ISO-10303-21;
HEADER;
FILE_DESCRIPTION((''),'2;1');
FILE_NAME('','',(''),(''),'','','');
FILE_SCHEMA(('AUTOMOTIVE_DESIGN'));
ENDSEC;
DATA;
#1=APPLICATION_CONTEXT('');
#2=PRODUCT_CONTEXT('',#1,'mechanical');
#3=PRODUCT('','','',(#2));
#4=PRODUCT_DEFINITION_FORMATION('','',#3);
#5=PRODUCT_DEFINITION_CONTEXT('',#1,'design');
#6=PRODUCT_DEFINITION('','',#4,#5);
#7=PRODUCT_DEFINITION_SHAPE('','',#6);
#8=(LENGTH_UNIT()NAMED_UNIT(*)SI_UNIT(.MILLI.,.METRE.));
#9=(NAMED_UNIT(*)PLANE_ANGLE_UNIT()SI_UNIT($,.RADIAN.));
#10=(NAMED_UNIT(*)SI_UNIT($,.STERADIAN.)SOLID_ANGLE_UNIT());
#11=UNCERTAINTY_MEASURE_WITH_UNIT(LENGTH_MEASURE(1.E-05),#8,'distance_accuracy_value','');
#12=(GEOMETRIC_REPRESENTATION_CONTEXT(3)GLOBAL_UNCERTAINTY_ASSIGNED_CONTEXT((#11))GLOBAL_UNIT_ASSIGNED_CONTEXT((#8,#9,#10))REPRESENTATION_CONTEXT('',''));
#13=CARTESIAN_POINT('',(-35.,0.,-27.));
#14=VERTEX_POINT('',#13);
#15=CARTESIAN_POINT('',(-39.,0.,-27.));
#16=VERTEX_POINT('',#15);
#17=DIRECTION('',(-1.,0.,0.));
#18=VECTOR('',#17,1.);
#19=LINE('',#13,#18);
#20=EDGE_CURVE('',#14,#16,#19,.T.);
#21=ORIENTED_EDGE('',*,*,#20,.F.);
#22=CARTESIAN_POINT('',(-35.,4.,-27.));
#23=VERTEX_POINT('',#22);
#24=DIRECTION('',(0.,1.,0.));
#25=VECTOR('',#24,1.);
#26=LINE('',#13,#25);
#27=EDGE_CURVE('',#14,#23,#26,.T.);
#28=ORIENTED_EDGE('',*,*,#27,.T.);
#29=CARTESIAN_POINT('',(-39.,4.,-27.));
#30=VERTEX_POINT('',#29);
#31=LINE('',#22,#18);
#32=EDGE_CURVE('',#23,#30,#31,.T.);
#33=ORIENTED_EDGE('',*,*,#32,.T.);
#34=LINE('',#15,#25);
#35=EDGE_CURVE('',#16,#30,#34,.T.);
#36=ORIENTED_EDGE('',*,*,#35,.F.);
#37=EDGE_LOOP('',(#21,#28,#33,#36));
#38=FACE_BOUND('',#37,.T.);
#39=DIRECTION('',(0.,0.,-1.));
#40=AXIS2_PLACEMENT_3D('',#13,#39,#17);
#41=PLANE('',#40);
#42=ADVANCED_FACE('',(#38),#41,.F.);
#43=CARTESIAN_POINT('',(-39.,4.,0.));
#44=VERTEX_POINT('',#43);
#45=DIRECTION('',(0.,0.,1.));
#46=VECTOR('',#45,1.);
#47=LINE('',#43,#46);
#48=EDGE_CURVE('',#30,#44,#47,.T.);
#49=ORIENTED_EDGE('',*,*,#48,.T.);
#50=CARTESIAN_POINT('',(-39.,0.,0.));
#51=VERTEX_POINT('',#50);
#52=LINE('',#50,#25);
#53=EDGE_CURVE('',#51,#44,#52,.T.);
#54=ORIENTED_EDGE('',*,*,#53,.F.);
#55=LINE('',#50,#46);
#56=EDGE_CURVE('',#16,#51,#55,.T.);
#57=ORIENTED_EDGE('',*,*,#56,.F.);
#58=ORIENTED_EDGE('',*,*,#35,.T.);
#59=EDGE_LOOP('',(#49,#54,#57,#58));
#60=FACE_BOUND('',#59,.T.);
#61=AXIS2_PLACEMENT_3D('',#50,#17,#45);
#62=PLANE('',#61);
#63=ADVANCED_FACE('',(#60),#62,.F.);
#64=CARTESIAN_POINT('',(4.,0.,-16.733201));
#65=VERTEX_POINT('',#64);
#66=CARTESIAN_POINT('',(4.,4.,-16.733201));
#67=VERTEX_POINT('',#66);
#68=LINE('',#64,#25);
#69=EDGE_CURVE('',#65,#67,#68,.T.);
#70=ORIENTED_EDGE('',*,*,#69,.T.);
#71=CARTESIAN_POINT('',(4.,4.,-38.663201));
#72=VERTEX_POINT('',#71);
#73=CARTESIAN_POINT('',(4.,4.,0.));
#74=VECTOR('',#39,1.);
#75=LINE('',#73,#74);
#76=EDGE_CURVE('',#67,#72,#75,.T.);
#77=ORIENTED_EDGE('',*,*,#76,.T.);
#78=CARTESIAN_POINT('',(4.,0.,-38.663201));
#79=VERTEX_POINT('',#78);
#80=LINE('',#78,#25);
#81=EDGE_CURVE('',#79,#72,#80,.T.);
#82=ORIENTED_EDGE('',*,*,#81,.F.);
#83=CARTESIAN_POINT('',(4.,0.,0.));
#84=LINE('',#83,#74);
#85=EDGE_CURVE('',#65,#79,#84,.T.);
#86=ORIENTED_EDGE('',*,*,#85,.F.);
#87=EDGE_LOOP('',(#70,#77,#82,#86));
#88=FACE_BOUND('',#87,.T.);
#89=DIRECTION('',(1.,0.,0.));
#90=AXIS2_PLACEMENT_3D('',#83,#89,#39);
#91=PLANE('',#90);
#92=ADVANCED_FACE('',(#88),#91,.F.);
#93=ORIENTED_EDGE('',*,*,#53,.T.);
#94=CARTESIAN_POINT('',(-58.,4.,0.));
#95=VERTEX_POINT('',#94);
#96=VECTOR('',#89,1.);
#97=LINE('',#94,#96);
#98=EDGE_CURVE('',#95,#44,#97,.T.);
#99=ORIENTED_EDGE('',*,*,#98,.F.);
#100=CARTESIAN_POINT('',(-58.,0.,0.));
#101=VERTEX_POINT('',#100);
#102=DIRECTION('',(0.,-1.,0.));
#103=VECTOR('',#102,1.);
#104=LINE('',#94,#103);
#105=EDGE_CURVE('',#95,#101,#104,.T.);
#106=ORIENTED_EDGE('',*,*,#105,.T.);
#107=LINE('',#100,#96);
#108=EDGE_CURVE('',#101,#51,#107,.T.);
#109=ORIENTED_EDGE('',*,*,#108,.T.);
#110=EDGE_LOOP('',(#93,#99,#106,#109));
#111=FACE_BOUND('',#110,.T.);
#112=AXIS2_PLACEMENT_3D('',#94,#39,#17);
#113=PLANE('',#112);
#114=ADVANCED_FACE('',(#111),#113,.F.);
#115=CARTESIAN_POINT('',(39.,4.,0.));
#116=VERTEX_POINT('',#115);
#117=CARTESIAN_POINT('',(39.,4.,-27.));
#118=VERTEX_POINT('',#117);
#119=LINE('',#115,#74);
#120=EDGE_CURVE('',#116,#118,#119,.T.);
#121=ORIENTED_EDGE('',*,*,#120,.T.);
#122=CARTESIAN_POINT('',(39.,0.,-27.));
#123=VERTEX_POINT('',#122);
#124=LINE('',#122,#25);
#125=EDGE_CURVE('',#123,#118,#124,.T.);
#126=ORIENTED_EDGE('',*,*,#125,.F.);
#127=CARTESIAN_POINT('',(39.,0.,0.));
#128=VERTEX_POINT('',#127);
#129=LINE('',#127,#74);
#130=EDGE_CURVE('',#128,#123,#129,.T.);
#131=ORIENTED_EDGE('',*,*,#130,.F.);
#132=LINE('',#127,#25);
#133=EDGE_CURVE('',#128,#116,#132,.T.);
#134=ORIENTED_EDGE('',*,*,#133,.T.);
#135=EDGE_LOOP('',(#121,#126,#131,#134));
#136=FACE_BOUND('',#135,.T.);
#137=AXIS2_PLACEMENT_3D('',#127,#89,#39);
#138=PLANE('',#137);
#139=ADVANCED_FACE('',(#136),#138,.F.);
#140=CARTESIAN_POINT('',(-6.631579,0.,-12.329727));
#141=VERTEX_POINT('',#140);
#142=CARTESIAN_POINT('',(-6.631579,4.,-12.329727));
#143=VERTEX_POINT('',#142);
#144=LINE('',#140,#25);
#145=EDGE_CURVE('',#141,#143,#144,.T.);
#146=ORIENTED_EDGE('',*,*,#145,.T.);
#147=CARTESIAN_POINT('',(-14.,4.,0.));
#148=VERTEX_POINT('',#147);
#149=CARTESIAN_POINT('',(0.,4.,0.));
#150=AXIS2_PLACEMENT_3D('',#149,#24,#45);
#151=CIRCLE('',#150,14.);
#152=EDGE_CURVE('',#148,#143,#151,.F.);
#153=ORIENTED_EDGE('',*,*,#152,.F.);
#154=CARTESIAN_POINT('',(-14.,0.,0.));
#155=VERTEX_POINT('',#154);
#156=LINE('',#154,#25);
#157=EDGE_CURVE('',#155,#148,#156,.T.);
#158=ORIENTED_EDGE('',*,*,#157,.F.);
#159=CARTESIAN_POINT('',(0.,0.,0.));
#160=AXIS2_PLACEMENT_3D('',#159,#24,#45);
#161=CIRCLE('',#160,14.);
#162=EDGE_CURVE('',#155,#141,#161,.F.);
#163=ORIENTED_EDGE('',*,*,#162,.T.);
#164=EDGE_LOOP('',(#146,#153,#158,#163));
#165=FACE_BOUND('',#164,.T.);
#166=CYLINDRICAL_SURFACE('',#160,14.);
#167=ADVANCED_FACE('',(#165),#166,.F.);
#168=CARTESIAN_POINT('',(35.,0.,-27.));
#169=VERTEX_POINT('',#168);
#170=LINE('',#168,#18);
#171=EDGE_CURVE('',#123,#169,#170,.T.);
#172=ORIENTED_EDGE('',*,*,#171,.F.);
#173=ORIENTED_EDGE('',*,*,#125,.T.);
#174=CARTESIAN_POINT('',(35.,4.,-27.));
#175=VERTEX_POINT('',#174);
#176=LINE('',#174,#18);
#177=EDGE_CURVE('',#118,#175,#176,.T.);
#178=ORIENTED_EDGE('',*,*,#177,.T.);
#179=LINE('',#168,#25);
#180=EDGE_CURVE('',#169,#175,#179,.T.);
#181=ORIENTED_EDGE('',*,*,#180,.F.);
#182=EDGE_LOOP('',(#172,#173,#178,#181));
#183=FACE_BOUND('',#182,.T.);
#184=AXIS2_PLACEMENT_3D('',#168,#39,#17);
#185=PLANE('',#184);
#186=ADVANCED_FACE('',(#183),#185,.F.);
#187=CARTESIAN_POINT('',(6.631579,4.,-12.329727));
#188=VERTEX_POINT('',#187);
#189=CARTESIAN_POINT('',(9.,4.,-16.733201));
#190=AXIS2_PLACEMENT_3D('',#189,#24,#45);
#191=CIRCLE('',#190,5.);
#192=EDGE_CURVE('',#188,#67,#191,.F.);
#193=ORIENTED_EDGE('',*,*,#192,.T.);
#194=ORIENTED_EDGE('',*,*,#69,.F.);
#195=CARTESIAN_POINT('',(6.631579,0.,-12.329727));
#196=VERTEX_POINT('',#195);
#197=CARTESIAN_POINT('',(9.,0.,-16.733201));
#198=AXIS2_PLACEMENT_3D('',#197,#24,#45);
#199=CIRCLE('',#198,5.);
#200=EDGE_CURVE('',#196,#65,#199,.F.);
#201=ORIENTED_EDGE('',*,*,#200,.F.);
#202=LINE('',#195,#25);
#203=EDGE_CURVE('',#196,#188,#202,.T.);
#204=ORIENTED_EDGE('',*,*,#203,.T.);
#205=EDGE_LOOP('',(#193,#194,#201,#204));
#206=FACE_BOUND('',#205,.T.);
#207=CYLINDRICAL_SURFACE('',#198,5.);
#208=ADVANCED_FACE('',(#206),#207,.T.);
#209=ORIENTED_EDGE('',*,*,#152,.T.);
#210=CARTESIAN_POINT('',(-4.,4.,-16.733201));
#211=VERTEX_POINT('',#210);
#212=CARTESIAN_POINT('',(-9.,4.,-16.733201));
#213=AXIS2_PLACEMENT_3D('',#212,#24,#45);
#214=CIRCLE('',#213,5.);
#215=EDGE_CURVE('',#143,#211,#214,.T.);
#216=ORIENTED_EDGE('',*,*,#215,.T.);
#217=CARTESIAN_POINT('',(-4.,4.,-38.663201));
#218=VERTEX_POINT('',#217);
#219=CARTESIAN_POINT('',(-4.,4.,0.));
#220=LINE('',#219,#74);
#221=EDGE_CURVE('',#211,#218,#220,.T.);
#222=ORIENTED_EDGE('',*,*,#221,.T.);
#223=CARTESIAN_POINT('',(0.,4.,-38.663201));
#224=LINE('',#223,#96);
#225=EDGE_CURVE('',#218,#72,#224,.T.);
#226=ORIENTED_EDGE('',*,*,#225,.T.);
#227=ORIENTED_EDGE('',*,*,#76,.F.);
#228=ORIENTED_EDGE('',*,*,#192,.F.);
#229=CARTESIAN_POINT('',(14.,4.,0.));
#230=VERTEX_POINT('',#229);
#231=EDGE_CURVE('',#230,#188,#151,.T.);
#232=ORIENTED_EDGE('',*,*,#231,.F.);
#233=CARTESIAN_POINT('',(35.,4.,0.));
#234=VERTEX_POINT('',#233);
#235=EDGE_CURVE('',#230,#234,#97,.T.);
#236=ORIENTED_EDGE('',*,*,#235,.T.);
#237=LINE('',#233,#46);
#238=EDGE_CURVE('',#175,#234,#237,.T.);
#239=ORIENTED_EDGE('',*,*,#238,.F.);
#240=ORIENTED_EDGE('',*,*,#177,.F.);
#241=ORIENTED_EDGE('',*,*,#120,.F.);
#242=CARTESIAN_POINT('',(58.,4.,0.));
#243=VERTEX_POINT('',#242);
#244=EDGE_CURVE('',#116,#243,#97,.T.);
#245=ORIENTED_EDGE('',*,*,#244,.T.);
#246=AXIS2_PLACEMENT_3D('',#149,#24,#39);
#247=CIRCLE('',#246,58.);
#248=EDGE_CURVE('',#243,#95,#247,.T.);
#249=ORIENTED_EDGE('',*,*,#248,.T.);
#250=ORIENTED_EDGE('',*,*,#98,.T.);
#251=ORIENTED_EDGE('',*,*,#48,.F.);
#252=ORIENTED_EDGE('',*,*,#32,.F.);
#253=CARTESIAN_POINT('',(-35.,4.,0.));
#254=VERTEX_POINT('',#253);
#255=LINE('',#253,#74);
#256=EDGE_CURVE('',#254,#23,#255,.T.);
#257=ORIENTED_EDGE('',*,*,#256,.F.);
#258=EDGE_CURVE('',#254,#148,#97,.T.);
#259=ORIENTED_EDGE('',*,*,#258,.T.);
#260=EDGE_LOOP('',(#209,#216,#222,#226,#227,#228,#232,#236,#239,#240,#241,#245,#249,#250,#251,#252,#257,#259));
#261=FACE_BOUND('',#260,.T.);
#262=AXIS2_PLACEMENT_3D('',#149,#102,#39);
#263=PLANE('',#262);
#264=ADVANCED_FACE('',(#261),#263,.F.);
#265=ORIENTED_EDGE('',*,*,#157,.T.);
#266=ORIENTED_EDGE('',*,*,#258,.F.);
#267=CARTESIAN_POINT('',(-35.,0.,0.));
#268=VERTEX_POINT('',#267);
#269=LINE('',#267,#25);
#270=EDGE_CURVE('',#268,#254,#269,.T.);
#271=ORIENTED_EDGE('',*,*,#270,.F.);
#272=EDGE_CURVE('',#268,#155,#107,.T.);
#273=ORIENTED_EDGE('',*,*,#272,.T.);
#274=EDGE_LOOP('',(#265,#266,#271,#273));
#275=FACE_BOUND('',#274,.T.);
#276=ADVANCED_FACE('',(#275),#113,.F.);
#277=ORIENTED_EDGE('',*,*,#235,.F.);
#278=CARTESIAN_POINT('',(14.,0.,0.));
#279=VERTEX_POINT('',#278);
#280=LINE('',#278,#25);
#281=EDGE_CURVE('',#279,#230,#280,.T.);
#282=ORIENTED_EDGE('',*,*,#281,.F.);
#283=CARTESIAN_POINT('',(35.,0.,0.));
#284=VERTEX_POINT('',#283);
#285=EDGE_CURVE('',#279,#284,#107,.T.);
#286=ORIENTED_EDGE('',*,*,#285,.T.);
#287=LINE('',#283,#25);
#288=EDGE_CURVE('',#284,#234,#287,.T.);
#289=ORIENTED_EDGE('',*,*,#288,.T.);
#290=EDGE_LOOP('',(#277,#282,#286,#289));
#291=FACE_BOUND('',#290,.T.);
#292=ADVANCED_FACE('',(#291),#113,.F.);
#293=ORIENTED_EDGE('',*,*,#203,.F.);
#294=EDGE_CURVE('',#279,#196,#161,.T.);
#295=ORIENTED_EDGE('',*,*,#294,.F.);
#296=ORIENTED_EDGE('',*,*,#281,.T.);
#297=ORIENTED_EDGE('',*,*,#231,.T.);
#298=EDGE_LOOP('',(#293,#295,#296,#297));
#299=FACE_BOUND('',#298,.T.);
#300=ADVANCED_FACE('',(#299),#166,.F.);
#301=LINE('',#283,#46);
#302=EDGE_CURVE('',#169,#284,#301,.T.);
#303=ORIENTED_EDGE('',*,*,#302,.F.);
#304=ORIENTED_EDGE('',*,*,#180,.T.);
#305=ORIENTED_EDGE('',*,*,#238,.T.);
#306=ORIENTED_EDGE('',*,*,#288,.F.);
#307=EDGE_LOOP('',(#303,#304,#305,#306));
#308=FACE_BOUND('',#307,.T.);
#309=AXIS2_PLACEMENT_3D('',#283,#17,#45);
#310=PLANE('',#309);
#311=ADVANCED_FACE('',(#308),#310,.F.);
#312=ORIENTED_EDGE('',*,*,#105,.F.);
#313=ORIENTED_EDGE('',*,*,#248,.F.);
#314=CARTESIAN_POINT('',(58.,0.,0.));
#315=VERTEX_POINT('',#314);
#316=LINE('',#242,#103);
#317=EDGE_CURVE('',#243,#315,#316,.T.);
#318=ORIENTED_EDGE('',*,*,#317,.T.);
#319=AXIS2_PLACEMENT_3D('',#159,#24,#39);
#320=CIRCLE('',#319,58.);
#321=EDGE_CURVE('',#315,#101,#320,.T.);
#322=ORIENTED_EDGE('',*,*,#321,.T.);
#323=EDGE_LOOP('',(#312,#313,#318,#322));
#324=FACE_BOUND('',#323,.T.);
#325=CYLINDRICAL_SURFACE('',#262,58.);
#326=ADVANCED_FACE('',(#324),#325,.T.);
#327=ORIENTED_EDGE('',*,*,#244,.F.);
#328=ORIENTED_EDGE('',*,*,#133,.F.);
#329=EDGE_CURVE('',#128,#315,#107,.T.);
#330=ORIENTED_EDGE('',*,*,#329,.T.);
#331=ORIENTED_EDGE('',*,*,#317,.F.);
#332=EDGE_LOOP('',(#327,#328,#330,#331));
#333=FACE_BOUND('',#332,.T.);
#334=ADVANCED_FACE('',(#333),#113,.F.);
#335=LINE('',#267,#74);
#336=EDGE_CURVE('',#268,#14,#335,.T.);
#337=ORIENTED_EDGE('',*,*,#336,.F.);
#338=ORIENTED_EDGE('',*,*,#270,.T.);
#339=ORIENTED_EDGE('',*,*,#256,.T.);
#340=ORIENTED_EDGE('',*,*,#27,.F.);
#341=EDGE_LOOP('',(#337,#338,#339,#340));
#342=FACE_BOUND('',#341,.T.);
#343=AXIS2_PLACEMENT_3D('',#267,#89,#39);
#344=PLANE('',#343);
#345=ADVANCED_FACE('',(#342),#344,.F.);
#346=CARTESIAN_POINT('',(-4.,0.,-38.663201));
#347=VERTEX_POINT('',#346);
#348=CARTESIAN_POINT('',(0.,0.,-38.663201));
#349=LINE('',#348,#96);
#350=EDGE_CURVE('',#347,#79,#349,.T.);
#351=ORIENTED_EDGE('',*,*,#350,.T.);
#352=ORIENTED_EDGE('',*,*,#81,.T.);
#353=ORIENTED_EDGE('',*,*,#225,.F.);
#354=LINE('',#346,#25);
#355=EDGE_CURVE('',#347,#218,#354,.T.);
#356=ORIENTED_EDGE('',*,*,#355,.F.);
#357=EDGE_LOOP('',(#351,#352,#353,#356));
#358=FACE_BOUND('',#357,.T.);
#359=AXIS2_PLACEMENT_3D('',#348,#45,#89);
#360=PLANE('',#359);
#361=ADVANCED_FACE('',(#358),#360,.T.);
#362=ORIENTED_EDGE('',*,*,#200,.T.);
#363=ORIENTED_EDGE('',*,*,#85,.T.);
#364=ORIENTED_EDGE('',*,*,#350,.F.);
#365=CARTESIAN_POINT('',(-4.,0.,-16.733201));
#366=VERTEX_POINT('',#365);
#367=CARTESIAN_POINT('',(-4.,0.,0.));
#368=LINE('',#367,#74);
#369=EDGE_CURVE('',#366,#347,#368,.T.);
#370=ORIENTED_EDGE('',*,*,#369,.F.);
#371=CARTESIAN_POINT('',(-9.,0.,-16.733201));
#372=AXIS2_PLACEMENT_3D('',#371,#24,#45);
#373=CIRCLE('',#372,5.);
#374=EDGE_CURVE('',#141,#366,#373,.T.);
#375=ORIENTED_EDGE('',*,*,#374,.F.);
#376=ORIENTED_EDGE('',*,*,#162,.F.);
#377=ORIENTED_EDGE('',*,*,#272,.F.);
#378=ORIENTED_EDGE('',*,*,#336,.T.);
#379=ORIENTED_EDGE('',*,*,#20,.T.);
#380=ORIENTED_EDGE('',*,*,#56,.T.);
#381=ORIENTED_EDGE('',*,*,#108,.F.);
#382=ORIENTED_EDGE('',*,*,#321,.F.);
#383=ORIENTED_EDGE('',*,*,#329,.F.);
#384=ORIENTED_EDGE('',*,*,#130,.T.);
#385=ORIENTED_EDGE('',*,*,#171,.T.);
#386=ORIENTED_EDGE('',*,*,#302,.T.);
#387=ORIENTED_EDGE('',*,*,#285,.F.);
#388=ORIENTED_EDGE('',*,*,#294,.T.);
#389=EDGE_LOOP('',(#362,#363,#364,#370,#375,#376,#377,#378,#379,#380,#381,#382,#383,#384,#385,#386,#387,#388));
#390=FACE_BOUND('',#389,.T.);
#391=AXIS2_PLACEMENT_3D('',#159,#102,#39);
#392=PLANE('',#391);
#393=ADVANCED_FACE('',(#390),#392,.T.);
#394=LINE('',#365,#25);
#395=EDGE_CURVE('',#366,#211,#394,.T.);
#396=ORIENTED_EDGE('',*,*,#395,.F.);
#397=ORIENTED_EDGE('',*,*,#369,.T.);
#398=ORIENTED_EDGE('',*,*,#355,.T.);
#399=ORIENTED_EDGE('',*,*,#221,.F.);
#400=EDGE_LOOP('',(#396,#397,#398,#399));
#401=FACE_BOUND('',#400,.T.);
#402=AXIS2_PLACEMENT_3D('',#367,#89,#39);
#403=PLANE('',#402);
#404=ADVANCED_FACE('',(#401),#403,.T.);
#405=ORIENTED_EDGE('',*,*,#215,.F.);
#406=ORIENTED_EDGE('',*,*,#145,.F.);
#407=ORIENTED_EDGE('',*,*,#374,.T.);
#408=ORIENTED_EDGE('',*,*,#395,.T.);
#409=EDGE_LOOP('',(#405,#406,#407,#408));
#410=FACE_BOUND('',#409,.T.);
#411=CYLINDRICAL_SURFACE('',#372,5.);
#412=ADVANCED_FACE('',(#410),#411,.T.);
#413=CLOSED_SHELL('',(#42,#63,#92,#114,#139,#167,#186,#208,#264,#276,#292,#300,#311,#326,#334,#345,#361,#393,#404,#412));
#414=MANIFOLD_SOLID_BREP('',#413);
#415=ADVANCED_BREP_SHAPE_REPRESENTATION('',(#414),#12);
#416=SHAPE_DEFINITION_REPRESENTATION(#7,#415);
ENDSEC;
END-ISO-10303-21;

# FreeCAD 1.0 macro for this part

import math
import FreeCAD as App
import Part
import Sketcher

V = App.Vector

doc = App.newDocument("Part")
params = doc.addObject("Spreadsheet::Sheet", "Params")
for row, (alias, value) in enumerate([
    ("sketch1_radius", "58 mm"),
    ("pad1_length", "4 mm"),
    ("sketch2_width", "4 mm"),
    ("sketch2_height", "27 mm"),
    ("sketch3_radius", "5 mm"),
    ("sketch3_radius2", "14 mm"),
    ("sketch3_width", "8 mm"),
    ("sketch3_height", "21.93 mm"),
], start=1):
    params.set(f"A{row}", alias)
    params.set(f"B{row}", "=" + value)
    params.setAlias(f"B{row}", alias)

body = doc.addObject("PartDesign::Body", "Body")

# Sketch on XZ plane
sketch1 = body.newObject("Sketcher::SketchObject", "Sketch")
sketch1.AttachmentSupport = (doc.getObject("XZ_Plane"), [""])
sketch1.MapMode = "FlatFace"
sketch1.addGeometry([
    Part.LineSegment(V(-58, 0, 0), V(58, 0, 0)),
    Part.ArcOfCircle(Part.Circle(V(0, 0, 0), V(0, 0, 1), 58), math.radians(180), math.radians(360)),
], False)
sketch1.addConstraint([
    Sketcher.Constraint("Coincident", 0, 1, 1, 1),
    Sketcher.Constraint("Coincident", 1, 2, 0, 2),
    Sketcher.Constraint("Horizontal", 0),
    Sketcher.Constraint("Coincident", 1, 3, -1, 1),
    Sketcher.Constraint("PointOnObject", 0, 1, -1),
    Sketcher.Constraint("Radius", 1, 58.0),
])
sketch1.setExpression("Constraints[5]", "Params.sketch1_radius")
pad1 = body.newObject("PartDesign::Pad", "Pad")
pad1.Profile = sketch1
pad1.setExpression("Length", "Params.pad1_length")
pad1.Reversed = True

# Sketch on XZ plane
sketch2 = body.newObject("Sketcher::SketchObject", "Sketch001")
sketch2.AttachmentSupport = (doc.getObject("XZ_Plane"), [""])
sketch2.MapMode = "FlatFace"
sketch2.AttachmentOffset = App.Placement(V(0, 0, -4), App.Rotation())
sketch2.addGeometry([
    Part.LineSegment(V(35, -27, 0), V(35, 0, 0)),  # 0
    Part.LineSegment(V(35, 0, 0), V(39, 0, 0)),  # 1
    Part.LineSegment(V(39, 0, 0), V(39, -27, 0)),  # 2
    Part.LineSegment(V(39, -27, 0), V(35, -27, 0)),  # 3
    Part.LineSegment(V(-39, -27, 0), V(-39, 0, 0)),  # 4
    Part.LineSegment(V(-39, 0, 0), V(-35, 0, 0)),  # 5
    Part.LineSegment(V(-35, 0, 0), V(-35, -27, 0)),  # 6
    Part.LineSegment(V(-35, -27, 0), V(-39, -27, 0)),  # 7
], False)
sketch2.addConstraint([
    Sketcher.Constraint("Coincident", 0, 2, 1, 1),
    Sketcher.Constraint("Coincident", 1, 2, 2, 1),
    Sketcher.Constraint("Coincident", 2, 2, 3, 1),
    Sketcher.Constraint("Coincident", 3, 2, 0, 1),
    Sketcher.Constraint("Coincident", 4, 2, 5, 1),
    Sketcher.Constraint("Coincident", 5, 2, 6, 1),
    Sketcher.Constraint("Coincident", 6, 2, 7, 1),
    Sketcher.Constraint("Coincident", 7, 2, 4, 1),
    Sketcher.Constraint("Vertical", 0),
    Sketcher.Constraint("Horizontal", 1),
    Sketcher.Constraint("Vertical", 2),
    Sketcher.Constraint("Horizontal", 3),
    Sketcher.Constraint("Vertical", 4),
    Sketcher.Constraint("Horizontal", 5),
    Sketcher.Constraint("Vertical", 6),
    Sketcher.Constraint("Horizontal", 7),
    Sketcher.Constraint("Symmetric", 1, 2, 4, 2, -1, 1),
    Sketcher.Constraint("Symmetric", 0, 2, 5, 2, -2),
    Sketcher.Constraint("Horizontal", 3, 2, 6, 2),
    Sketcher.Constraint("DistanceX", 1, 1, 1, 2, 4.0),
    Sketcher.Constraint("DistanceY", 0, 1, 0, 2, 27.0),
    Sketcher.Constraint("DistanceX", -1, 1, 0, 2, 35.0),
])
sketch2.setExpression("Constraints[19]", "Params.sketch2_width")
sketch2.setExpression("Constraints[20]", "Params.sketch2_height")
pocket1 = body.newObject("PartDesign::Pocket", "Pocket")
pocket1.Profile = sketch2
pocket1.Type = "ThroughAll"
pocket1.Reversed = True

# Sketch on XZ plane
sketch3 = body.newObject("Sketcher::SketchObject", "Sketch002")
sketch3.AttachmentSupport = (doc.getObject("XZ_Plane"), [""])
sketch3.MapMode = "FlatFace"
sketch3.AttachmentOffset = App.Placement(V(0, 0, -4), App.Rotation())
sketch3.addGeometry([
    Part.LineSegment(V(4, -38.663201, 0), V(-4, -38.663201, 0)),  # 0
    Part.LineSegment(V(-4, -38.663201, 0), V(-4, -16.733201, 0)),  # 1
    Part.ArcOfCircle(Part.Circle(V(-9, -16.733201, 0), V(0, 0, 1), 5), math.radians(0), math.radians(61.726286)),  # 2
    Part.ArcOfCircle(Part.Circle(V(0, 0, 0), V(0, 0, 1), 14), math.radians(180), math.radians(241.726286)),  # 3
    Part.LineSegment(V(-14, 0, 0), V(14, 0, 0)),  # 4
    Part.ArcOfCircle(Part.Circle(V(0, 0, 0), V(0, 0, 1), 14), math.radians(-61.726286), math.radians(0)),  # 5
    Part.ArcOfCircle(Part.Circle(V(9, -16.733201, 0), V(0, 0, 1), 5), math.radians(118.273714), math.radians(180)),  # 6
    Part.LineSegment(V(4, -16.733201, 0), V(4, -38.663201, 0)),  # 7
], False)
sketch3.addConstraint([
    Sketcher.Constraint("Coincident", 0, 2, 1, 1),
    Sketcher.Constraint("Tangent", 1, 2, 2, 1),
    Sketcher.Constraint("Tangent", 2, 2, 3, 2),
    Sketcher.Constraint("Coincident", 3, 1, 4, 1),
    Sketcher.Constraint("Coincident", 4, 2, 5, 2),
    Sketcher.Constraint("Tangent", 5, 1, 6, 1),
    Sketcher.Constraint("Tangent", 6, 2, 7, 1),
    Sketcher.Constraint("Coincident", 7, 2, 0, 1),
    Sketcher.Constraint("Horizontal", 0),
    Sketcher.Constraint("Vertical", 1),
    Sketcher.Constraint("Horizontal", 4),
    Sketcher.Constraint("Vertical", 7),
    Sketcher.Constraint("Coincident", 3, 3, -1, 1),
    Sketcher.Constraint("Coincident", 5, 3, -1, 1),
    Sketcher.Constraint("Equal", 3, 5),
    Sketcher.Constraint("Equal", 2, 6),
    Sketcher.Constraint("PointOnObject", 3, 1, -1),
    Sketcher.Constraint("Horizontal", 2, 3, 6, 3),
    Sketcher.Constraint("Radius", 2, 5.0),
    Sketcher.Constraint("Radius", 3, 14.0),
    Sketcher.Constraint("DistanceX", 0, 2, 0, 1, 8.0),
    Sketcher.Constraint("DistanceY", 1, 1, 1, 2, 21.93),
])
sketch3.setExpression("Constraints[18]", "Params.sketch3_radius")
sketch3.setExpression("Constraints[19]", "Params.sketch3_radius2")
sketch3.setExpression("Constraints[20]", "Params.sketch3_width")
sketch3.setExpression("Constraints[21]", "Params.sketch3_height")
pocket2 = body.newObject("PartDesign::Pocket", "Pocket001")
pocket2.Profile = sketch3
pocket2.Type = "ThroughAll"
pocket2.Reversed = True

doc.recompute()
